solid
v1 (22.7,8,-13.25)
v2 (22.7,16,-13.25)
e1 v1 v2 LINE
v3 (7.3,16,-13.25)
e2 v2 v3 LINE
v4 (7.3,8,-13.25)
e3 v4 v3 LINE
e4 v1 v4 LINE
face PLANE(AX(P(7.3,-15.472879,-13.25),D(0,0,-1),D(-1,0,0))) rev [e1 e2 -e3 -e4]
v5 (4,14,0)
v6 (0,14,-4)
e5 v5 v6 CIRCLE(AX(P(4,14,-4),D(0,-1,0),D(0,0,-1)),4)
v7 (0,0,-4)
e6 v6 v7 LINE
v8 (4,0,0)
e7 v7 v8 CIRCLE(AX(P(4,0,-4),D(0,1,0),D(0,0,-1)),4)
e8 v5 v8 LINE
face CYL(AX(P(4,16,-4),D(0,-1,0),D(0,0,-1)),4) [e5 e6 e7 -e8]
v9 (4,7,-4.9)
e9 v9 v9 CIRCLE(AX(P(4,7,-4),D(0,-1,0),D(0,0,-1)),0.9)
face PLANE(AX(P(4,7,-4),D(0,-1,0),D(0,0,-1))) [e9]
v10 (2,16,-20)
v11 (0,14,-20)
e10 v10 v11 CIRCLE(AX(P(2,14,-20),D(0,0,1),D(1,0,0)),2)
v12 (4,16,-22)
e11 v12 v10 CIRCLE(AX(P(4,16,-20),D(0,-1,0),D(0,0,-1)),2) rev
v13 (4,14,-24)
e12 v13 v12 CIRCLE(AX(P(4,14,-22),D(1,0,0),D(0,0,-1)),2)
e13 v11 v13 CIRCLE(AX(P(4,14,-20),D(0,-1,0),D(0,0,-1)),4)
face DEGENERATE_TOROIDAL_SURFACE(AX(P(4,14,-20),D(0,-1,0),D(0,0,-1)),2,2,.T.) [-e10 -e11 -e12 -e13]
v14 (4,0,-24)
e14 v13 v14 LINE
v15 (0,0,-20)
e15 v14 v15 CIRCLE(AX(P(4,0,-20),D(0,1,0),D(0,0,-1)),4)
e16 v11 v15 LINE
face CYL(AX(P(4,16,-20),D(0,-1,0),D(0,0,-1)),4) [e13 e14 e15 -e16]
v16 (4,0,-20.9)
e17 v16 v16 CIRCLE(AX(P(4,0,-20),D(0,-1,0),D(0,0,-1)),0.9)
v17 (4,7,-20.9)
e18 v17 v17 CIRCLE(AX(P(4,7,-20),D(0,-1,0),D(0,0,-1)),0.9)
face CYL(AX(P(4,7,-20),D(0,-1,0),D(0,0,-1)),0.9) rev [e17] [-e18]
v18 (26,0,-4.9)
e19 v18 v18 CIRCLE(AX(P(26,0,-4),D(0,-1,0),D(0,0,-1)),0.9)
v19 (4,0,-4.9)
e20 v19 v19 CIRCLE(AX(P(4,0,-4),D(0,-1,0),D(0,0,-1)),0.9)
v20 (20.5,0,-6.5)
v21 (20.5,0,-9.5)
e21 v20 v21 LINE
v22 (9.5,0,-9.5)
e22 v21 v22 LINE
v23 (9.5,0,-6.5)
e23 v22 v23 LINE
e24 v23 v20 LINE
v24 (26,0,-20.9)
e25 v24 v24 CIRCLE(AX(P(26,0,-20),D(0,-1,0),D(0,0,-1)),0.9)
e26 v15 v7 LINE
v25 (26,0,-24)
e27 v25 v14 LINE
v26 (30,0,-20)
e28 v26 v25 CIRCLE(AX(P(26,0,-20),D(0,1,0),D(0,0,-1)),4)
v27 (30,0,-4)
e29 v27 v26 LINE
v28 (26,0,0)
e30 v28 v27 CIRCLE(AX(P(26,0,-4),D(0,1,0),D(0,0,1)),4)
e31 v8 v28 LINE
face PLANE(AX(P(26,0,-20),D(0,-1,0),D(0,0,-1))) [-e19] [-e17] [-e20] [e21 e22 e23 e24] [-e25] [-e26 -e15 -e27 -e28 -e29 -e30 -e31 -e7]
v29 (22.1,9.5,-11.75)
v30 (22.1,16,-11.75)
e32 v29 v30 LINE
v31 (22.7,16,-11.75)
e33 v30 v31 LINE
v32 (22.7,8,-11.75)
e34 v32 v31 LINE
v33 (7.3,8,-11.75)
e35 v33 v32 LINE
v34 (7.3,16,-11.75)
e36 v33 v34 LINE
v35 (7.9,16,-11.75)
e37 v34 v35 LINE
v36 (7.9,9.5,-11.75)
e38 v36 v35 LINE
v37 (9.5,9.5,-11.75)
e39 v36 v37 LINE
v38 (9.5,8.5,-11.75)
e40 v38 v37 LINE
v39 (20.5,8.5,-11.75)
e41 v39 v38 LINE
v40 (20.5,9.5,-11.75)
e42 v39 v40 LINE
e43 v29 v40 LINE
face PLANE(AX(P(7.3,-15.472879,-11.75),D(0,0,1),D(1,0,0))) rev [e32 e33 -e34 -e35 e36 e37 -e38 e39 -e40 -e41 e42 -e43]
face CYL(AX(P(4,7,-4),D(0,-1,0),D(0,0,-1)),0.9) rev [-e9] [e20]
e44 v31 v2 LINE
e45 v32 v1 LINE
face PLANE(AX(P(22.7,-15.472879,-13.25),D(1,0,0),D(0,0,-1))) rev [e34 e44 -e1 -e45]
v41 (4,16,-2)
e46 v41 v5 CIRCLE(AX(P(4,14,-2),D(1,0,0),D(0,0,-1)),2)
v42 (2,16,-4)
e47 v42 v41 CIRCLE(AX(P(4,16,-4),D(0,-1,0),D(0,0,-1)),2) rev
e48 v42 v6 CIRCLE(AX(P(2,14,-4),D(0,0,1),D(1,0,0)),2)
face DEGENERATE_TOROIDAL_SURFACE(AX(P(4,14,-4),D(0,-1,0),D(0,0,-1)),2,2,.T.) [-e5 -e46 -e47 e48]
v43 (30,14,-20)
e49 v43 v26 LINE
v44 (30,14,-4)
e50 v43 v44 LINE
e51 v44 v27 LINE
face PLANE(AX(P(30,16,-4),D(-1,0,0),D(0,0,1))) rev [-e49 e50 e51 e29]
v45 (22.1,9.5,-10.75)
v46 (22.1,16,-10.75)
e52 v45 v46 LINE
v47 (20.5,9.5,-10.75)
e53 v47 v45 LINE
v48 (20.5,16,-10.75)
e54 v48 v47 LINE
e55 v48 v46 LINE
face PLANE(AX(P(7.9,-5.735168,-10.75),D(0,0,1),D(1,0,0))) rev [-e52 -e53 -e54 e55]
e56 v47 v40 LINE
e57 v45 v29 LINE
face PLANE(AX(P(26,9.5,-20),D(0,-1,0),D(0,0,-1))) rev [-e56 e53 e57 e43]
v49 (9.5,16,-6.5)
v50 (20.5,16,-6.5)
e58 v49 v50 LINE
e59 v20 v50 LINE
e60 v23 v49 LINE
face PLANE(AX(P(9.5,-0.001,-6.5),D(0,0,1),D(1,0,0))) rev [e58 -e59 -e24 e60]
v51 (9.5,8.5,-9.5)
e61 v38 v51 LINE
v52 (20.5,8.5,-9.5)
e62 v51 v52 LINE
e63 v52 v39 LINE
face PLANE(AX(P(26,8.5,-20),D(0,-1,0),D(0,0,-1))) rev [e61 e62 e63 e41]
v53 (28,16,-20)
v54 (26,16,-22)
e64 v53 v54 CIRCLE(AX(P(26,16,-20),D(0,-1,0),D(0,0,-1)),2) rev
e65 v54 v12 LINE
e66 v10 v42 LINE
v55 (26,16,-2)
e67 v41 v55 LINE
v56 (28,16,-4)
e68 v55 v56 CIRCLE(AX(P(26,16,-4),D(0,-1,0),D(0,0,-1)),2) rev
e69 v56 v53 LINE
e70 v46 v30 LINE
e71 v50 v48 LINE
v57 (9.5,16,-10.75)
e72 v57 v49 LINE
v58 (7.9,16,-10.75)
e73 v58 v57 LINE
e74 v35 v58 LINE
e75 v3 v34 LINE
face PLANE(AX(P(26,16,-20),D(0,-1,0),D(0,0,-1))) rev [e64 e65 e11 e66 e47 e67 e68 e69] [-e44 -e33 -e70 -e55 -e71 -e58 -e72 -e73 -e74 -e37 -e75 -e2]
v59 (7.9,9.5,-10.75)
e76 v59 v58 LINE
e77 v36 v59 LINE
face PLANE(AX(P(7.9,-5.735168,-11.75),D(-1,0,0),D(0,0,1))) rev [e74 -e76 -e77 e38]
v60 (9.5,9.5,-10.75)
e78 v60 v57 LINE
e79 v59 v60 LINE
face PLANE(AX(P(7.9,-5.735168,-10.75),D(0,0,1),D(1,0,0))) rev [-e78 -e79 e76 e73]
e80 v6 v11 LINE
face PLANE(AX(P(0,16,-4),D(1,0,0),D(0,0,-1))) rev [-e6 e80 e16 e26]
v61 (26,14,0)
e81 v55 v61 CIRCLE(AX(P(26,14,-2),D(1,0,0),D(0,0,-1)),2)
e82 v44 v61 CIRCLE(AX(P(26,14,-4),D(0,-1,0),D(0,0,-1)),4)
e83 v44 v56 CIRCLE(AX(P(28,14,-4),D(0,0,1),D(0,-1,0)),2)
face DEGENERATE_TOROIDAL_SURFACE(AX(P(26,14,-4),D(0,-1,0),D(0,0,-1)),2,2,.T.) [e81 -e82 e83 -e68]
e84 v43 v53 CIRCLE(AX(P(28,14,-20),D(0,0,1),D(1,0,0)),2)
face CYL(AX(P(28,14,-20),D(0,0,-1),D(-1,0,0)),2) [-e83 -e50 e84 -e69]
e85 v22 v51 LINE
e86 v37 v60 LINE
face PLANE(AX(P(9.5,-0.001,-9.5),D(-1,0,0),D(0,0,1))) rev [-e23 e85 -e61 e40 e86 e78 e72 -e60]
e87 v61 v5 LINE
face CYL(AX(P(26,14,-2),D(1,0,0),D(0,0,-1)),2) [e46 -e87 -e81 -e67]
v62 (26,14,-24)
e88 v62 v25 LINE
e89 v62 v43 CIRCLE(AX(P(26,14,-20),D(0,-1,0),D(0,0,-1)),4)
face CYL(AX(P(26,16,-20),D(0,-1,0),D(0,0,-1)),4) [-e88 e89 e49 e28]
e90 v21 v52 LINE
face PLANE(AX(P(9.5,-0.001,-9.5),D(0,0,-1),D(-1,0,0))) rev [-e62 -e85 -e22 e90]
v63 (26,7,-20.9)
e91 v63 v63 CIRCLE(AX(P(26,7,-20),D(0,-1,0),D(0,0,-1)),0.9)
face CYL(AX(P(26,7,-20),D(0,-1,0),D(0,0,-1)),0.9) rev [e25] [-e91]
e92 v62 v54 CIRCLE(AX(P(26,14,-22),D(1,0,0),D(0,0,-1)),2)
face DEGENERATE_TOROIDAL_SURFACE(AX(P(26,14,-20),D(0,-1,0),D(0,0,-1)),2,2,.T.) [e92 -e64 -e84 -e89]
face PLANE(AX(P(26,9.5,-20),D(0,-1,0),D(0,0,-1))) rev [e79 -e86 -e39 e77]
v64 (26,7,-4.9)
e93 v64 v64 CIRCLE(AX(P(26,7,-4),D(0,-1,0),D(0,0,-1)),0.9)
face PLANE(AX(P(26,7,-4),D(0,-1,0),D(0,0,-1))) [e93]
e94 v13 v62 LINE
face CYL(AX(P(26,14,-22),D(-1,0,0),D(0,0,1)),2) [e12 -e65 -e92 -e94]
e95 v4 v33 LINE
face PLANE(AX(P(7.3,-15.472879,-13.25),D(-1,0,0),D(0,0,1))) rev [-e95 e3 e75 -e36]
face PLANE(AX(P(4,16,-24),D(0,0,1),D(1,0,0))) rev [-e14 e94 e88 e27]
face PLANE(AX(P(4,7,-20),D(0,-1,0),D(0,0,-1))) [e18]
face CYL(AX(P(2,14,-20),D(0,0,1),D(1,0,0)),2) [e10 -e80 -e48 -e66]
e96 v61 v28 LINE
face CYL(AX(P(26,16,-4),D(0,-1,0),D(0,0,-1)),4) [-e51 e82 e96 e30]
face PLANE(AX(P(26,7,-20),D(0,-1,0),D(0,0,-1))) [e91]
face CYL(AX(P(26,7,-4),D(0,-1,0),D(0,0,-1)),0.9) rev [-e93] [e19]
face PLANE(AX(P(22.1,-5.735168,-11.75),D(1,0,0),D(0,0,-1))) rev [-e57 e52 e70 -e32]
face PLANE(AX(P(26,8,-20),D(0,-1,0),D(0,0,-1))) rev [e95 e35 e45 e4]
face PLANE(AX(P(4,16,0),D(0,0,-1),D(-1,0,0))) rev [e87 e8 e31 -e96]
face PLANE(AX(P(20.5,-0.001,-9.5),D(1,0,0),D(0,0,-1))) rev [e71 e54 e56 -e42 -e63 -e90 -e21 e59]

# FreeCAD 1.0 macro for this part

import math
import FreeCAD as App
import Part
import Sketcher

V = App.Vector
Q = App.Units.Quantity


def edges_at(feature, points):
    """Names of the edges that pass closest to the given points."""
    edges = feature.Shape.Edges
    near = lambda p: min(range(len(edges)), key=lambda i: edges[i].distToShape(Part.Vertex(*p))[0])
    return sorted({f"Edge{near(p) + 1}" for p in points})


def add_polygon(sketch, points):
    """Adds a closed chain of lines whose ends are joined by coincident constraints."""
    first, n = sketch.GeometryCount, len(points)
    for a, b in zip(points, points[1:] + points[:1]):
        sketch.addGeometry(Part.LineSegment(App.Vector(*a, 0), App.Vector(*b, 0)), False)
    for i in range(n):
        sketch.addConstraint(Sketcher.Constraint("Coincident", first + i, 2, first + (i + 1) % n, 1))

doc = App.newDocument("Part")
body = doc.addObject("PartDesign::Body", "Body")

# Sketch on XZ plane
sketch1 = body.newObject("Sketcher::SketchObject", "Sketch")
sketch1.AttachmentSupport = (doc.getObject("XZ_Plane"), [""])
sketch1.MapMode = "FlatFace"
sketch1.addGeometry(Part.LineSegment(V(4, 0, 0), V(26, 0, 0)), False)
sketch1.addGeometry(Part.ArcOfCircle(Part.Circle(V(26, -4, 0), V(0, 0, 1), 4), math.radians(0), math.radians(90)), False)
sketch1.addGeometry(Part.LineSegment(V(30, -4, 0), V(30, -20, 0)), False)
sketch1.addGeometry(Part.ArcOfCircle(Part.Circle(V(26, -20, 0), V(0, 0, 1), 4), math.radians(-90), math.radians(0)), False)
sketch1.addGeometry(Part.LineSegment(V(26, -24, 0), V(4, -24, 0)), False)
sketch1.addGeometry(Part.ArcOfCircle(Part.Circle(V(4, -20, 0), V(0, 0, 1), 4), math.radians(180), math.radians(270)), False)
sketch1.addGeometry(Part.LineSegment(V(0, -20, 0), V(0, -4, 0)), False)
sketch1.addGeometry(Part.ArcOfCircle(Part.Circle(V(4, -4, 0), V(0, 0, 1), 4), math.radians(90), math.radians(180)), False)
sketch1.addConstraint(Sketcher.Constraint("Tangent", 0, 2, 1, 2))
sketch1.addConstraint(Sketcher.Constraint("Tangent", 1, 1, 2, 1))
sketch1.addConstraint(Sketcher.Constraint("Tangent", 2, 2, 3, 2))
sketch1.addConstraint(Sketcher.Constraint("Tangent", 3, 1, 4, 1))
sketch1.addConstraint(Sketcher.Constraint("Tangent", 4, 2, 5, 2))
sketch1.addConstraint(Sketcher.Constraint("Tangent", 5, 1, 6, 1))
sketch1.addConstraint(Sketcher.Constraint("Tangent", 6, 2, 7, 2))
sketch1.addConstraint(Sketcher.Constraint("Tangent", 7, 1, 0, 1))
sketch1.addConstraint(Sketcher.Constraint("Horizontal", 0))
sketch1.addConstraint(Sketcher.Constraint("Vertical", 2))
sketch1.addConstraint(Sketcher.Constraint("Horizontal", 4))
sketch1.addConstraint(Sketcher.Constraint("Vertical", 6))
sketch1.addConstraint(Sketcher.Constraint("Equal", 1, 3))
sketch1.addConstraint(Sketcher.Constraint("Equal", 3, 5))
sketch1.addConstraint(Sketcher.Constraint("Equal", 5, 7))
sketch1.addConstraint(Sketcher.Constraint("PointOnObject", 0, 2, -1))
sketch1.addConstraint(Sketcher.Constraint("PointOnObject", 5, 1, -2))
sketch1.addConstraint(Sketcher.Constraint("Radius", 1, Q("4 mm")))
sketch1.addConstraint(Sketcher.Constraint("DistanceX", 0, 1, 0, 2, Q("22 mm")))
sketch1.addConstraint(Sketcher.Constraint("DistanceY", 2, 2, 2, 1, Q("16 mm")))
pad1 = body.newObject("PartDesign::Pad", "Pad")
pad1.Profile = sketch1
pad1.Length = 16
pad1.Reversed = True
doc.recompute()

fillet = body.newObject("PartDesign::Fillet", "Fillet")
fillet.Base = (pad1, edges_at(pad1, [
    (1.172, 16, -22.828),
    (0, 16, -12),
    (1.172, 16, -1.172),
    (15, 16, 0),
    (28.828, 16, -1.172),
    (30, 16, -12),
    (28.828, 16, -22.828),
    (15, 16, -24),
]))
fillet.Radius = 2

# Sketch on XZ plane
sketch2 = body.newObject("Sketcher::SketchObject", "Sketch001")
sketch2.AttachmentSupport = (doc.getObject("XZ_Plane"), [""])
sketch2.MapMode = "FlatFace"
sketch2.addGeometry(Part.Circle(V(4, -4, 0), V(0, 0, 1), 0.9), False)
sketch2.addGeometry(Part.Circle(V(26, -4, 0), V(0, 0, 1), 0.9), False)
sketch2.addGeometry(Part.Circle(V(26, -20, 0), V(0, 0, 1), 0.9), False)
sketch2.addGeometry(Part.Circle(V(4, -20, 0), V(0, 0, 1), 0.9), False)
sketch2.addConstraint(Sketcher.Constraint("Equal", 0, 1))
sketch2.addConstraint(Sketcher.Constraint("Equal", 1, 2))
sketch2.addConstraint(Sketcher.Constraint("Equal", 2, 3))
sketch2.addConstraint(Sketcher.Constraint("Horizontal", 0, 3, 1, 3))
sketch2.addConstraint(Sketcher.Constraint("Horizontal", 2, 3, 3, 3))
sketch2.addConstraint(Sketcher.Constraint("Vertical", 1, 3, 2, 3))
sketch2.addConstraint(Sketcher.Constraint("Vertical", 0, 3, 3, 3))
sketch2.addConstraint(Sketcher.Constraint("Diameter", 0, Q("1.8 mm")))
sketch2.addConstraint(Sketcher.Constraint("DistanceX", -1, 1, 0, 3, Q("4 mm")))
sketch2.addConstraint(Sketcher.Constraint("DistanceY", 0, 3, -1, 1, Q("4 mm")))
sketch2.addConstraint(Sketcher.Constraint("DistanceX", -1, 1, 1, 3, Q("26 mm")))
sketch2.addConstraint(Sketcher.Constraint("DistanceY", 2, 3, -1, 1, Q("20 mm")))
pocket1 = body.newObject("PartDesign::Pocket", "Pocket")
pocket1.Profile = sketch2
pocket1.Length = 7

# Sketch on XZ plane
sketch3 = body.newObject("Sketcher::SketchObject", "Sketch002")
sketch3.AttachmentSupport = (doc.getObject("XZ_Plane"), [""])
sketch3.MapMode = "FlatFace"
sketch3.AttachmentOffset = App.Placement(V(0, 0, -16), App.Rotation())
add_polygon(sketch3, [(9.5, -9.5), (9.5, -6.5), (20.5, -6.5), (20.5, -9.5)])  # lines 0-3
sketch3.addConstraint(Sketcher.Constraint("Vertical", 0))
sketch3.addConstraint(Sketcher.Constraint("Horizontal", 1))
sketch3.addConstraint(Sketcher.Constraint("Vertical", 2))
sketch3.addConstraint(Sketcher.Constraint("Horizontal", 3))
sketch3.addConstraint(Sketcher.Constraint("DistanceX", 1, 1, 1, 2, Q("11 mm")))
sketch3.addConstraint(Sketcher.Constraint("DistanceY", 0, 1, 0, 2, Q("3 mm")))
sketch3.addConstraint(Sketcher.Constraint("DistanceX", -1, 1, 0, 2, Q("9.5 mm")))
sketch3.addConstraint(Sketcher.Constraint("DistanceY", 0, 2, -1, 1, Q("6.5 mm")))
pocket2 = body.newObject("PartDesign::Pocket", "Pocket001")
pocket2.Profile = sketch3
pocket2.Type = "UpToFirst"
pocket2.Reversed = True

# Sketch on XZ plane
sketch4 = body.newObject("Sketcher::SketchObject", "Sketch003")
sketch4.AttachmentSupport = (doc.getObject("XZ_Plane"), [""])
sketch4.MapMode = "FlatFace"
sketch4.AttachmentOffset = App.Placement(V(0, 0, -16), App.Rotation())
add_polygon(sketch4, [(7.3, -13.2), (7.3, -11.8), (22.7, -11.8), (22.7, -13.2)])  # lines 0-3
sketch4.addConstraint(Sketcher.Constraint("Vertical", 0))
sketch4.addConstraint(Sketcher.Constraint("Horizontal", 1))
sketch4.addConstraint(Sketcher.Constraint("Vertical", 2))
sketch4.addConstraint(Sketcher.Constraint("Horizontal", 3))
sketch4.addConstraint(Sketcher.Constraint("DistanceX", 1, 1, 1, 2, Q("15.4 mm")))
sketch4.addConstraint(Sketcher.Constraint("DistanceY", 0, 1, 0, 2, Q("1.5 mm")))
sketch4.addConstraint(Sketcher.Constraint("DistanceX", -1, 1, 0, 2, Q("7.3 mm")))
sketch4.addConstraint(Sketcher.Constraint("DistanceY", 0, 2, -1, 1, Q("11.75 mm")))
pocket3 = body.newObject("PartDesign::Pocket", "Pocket002")
pocket3.Profile = sketch4
pocket3.Length = 8
pocket3.Reversed = True

# Sketch on XZ plane
sketch5 = body.newObject("Sketcher::SketchObject", "Sketch004")
sketch5.AttachmentSupport = (doc.getObject("XZ_Plane"), [""])
sketch5.MapMode = "FlatFace"
sketch5.AttachmentOffset = App.Placement(V(0, 0, -16), App.Rotation())
add_polygon(sketch5, [(9.5, -11.8), (9.5, -9.5), (20.5, -9.5), (20.5, -11.8)])  # lines 0-3
sketch5.addConstraint(Sketcher.Constraint("Vertical", 0))
sketch5.addConstraint(Sketcher.Constraint("Horizontal", 1))
sketch5.addConstraint(Sketcher.Constraint("Vertical", 2))
sketch5.addConstraint(Sketcher.Constraint("Horizontal", 3))
sketch5.addConstraint(Sketcher.Constraint("DistanceX", 1, 1, 1, 2, Q("11 mm")))
sketch5.addConstraint(Sketcher.Constraint("DistanceY", 0, 1, 0, 2, Q("2.25 mm")))
sketch5.addConstraint(Sketcher.Constraint("DistanceX", -1, 1, 0, 2, Q("9.5 mm")))
sketch5.addConstraint(Sketcher.Constraint("DistanceY", 0, 2, -1, 1, Q("9.5 mm")))
pocket4 = body.newObject("PartDesign::Pocket", "Pocket003")
pocket4.Profile = sketch5
pocket4.Length = 7.5
pocket4.Reversed = True

# Sketch on XZ plane
sketch6 = body.newObject("Sketcher::SketchObject", "Sketch005")
sketch6.AttachmentSupport = (doc.getObject("XZ_Plane"), [""])
sketch6.MapMode = "FlatFace"
sketch6.AttachmentOffset = App.Placement(V(0, 0, -16), App.Rotation())
add_polygon(sketch6, [(7.9, -11.8), (7.9, -10.8), (22.1, -10.8), (22.1, -11.8)])  # lines 0-3
sketch6.addConstraint(Sketcher.Constraint("Vertical", 0))
sketch6.addConstraint(Sketcher.Constraint("Horizontal", 1))
sketch6.addConstraint(Sketcher.Constraint("Vertical", 2))
sketch6.addConstraint(Sketcher.Constraint("Horizontal", 3))
sketch6.addConstraint(Sketcher.Constraint("DistanceY", 0, 1, 0, 2, Q("1 mm")))
sketch6.addConstraint(Sketcher.Constraint("DistanceX", 1, 1, 1, 2, Q("14.2 mm")))
sketch6.addConstraint(Sketcher.Constraint("DistanceX", -1, 1, 0, 2, Q("7.9 mm")))
sketch6.addConstraint(Sketcher.Constraint("DistanceY", 0, 2, -1, 1, Q("10.75 mm")))
pocket5 = body.newObject("PartDesign::Pocket", "Pocket004")
pocket5.Profile = sketch6
pocket5.Length = 6.5
pocket5.Reversed = True

doc.recompute()
